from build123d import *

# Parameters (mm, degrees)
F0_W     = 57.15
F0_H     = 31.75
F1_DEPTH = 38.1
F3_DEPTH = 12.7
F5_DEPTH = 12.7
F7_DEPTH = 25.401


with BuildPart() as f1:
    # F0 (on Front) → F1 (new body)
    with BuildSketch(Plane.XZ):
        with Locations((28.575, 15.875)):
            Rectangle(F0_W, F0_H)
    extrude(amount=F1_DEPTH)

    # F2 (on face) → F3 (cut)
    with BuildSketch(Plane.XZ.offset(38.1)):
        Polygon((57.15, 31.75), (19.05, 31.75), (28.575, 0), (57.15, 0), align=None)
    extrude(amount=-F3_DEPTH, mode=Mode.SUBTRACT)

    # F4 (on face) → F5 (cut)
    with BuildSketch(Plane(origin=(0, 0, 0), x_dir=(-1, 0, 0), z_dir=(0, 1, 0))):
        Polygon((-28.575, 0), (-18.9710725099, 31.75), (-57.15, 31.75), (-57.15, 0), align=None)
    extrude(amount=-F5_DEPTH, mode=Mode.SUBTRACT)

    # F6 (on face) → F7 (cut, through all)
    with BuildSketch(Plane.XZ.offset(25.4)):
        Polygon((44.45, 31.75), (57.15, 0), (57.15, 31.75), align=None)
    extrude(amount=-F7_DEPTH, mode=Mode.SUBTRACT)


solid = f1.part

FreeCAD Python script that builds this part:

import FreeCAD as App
import Part
import Sketcher

V = App.Vector
Q = App.Units.Quantity


def add_polygon(sketch, points):
    """Adds a closed chain of lines whose ends are joined by coincident constraints."""
    first, n = sketch.GeometryCount, len(points)
    for a, b in zip(points, points[1:] + points[:1]):
        sketch.addGeometry(Part.LineSegment(App.Vector(*a, 0), App.Vector(*b, 0)), False)
    for i in range(n):
        sketch.addConstraint(Sketcher.Constraint("Coincident", first + i, 2, first + (i + 1) % n, 1))

doc = App.newDocument("Part")
params = doc.addObject("Spreadsheet::Sheet", "Params")
for row, (alias, value) in enumerate([
    ("sketch1_width", "2.25 in"),
    ("sketch1_height", "1.25 in"),
    ("pad1_length", "1.5 in"),
    ("sketch2_width", "1.5 in"),
    ("sketch2_height", "1.25 in"),
    ("sketch2_width2", "1.125 in"),
    ("pocket1_length", "0.5 in"),
    ("sketch3_height", "1.25 in"),
    ("sketch3_width", "1.125 in"),
    ("pocket2_length", "0.5 in"),
    ("sketch4_width", "0.5 in"),
    ("sketch4_height", "1.25 in"),
], start=1):
    params.set(f"A{row}", alias)
    params.set(f"B{row}", "=" + value)
    params.setAlias(f"B{row}", alias)

body = doc.addObject("PartDesign::Body", "Body")

sketch1 = doc.addObject("Sketcher::SketchObject", "Sketch")
body.addObject(sketch1)
sketch1.AttachmentSupport = (doc.XZ_Plane, [""])
sketch1.MapMode = "FlatFace"
add_polygon(sketch1, [(0, 32), (0, 0), (57, 0), (57, 32)])
sketch1.addConstraint([
    Sketcher.Constraint("Vertical", 0),
    Sketcher.Constraint("Horizontal", 1),
    Sketcher.Constraint("Vertical", 2),
    Sketcher.Constraint("Horizontal", 3),
    Sketcher.Constraint("Coincident", 0, 2, -1, 1),
    Sketcher.Constraint("DistanceX", 1, 1, 1, 2, Q("2.25 in")),
    Sketcher.Constraint("DistanceY", 0, 2, 0, 1, Q("1.25 in")),
])
sketch1.setExpression("Constraints[9]", "Params.sketch1_width")
sketch1.setExpression("Constraints[10]", "Params.sketch1_height")
pad1 = doc.addObject("PartDesign::Pad", "Pad")
body.addObject(pad1)
pad1.Profile = sketch1
pad1.setExpression("Length", "Params.pad1_length")

sketch2 = doc.addObject("Sketcher::SketchObject", "Sketch001")
body.addObject(sketch2)
sketch2.AttachmentSupport = (doc.XZ_Plane, [""])
sketch2.MapMode = "FlatFace"
sketch2.AttachmentOffset = App.Placement(V(0, 0, 1.5 * 25.4), App.Rotation())
add_polygon(sketch2, [(57, 32), (19, 32), (29, 0), (57, 0)])
sketch2.addConstraint([
    Sketcher.Constraint("Horizontal", 0),
    Sketcher.Constraint("Horizontal", 2),
    Sketcher.Constraint("Vertical", 3),
    Sketcher.Constraint("PointOnObject", 1, 2, -1),
    Sketcher.Constraint("DistanceX", 0, 2, 0, 1, Q("1.5 in")),
    Sketcher.Constraint("DistanceY", 3, 1, 3, 2, Q("1.25 in")),
    Sketcher.Constraint("DistanceX", 2, 1, 2, 2, Q("1.125 in")),
    Sketcher.Constraint("DistanceX", -1, 1, 0, 2, Q("0.75 in")),
])
sketch2.setExpression("Constraints[8]", "Params.sketch2_width")
sketch2.setExpression("Constraints[9]", "Params.sketch2_height")
sketch2.setExpression("Constraints[10]", "Params.sketch2_width2")
pocket1 = doc.addObject("PartDesign::Pocket", "Pocket")
body.addObject(pocket1)
pocket1.Profile = sketch2
pocket1.setExpression("Length", "Params.pocket1_length")

sketch3 = doc.addObject("Sketcher::SketchObject", "Sketch002")
body.addObject(sketch3)
sketch3.AttachmentSupport = (doc.XZ_Plane, [""])
sketch3.MapMode = "FlatFace"
add_polygon(sketch3, [(29, 0), (19, 32), (57, 32), (57, 0)])
sketch3.addConstraint([
    Sketcher.Constraint("Horizontal", 1),
    Sketcher.Constraint("Vertical", 2),
    Sketcher.Constraint("Horizontal", 3),
    Sketcher.Constraint("PointOnObject", 2, 2, -1),
    Sketcher.Constraint("DistanceY", 2, 2, 2, 1, Q("1.25 in")),
    Sketcher.Constraint("DistanceX", 3, 2, 3, 1, Q("1.125 in")),
    Sketcher.Constraint("DistanceX", -1, 1, 1, 2, Q("2.25 in")),
    Sketcher.Constraint("Distance", 0, Q("33.170739 mm")),
])
sketch3.setExpression("Constraints[8]", "Params.sketch3_height")
sketch3.setExpression("Constraints[9]", "Params.sketch3_width")
pocket2 = doc.addObject("PartDesign::Pocket", "Pocket001")
body.addObject(pocket2)
pocket2.Profile = sketch3
pocket2.setExpression("Length", "Params.pocket2_length")
pocket2.Reversed = True

sketch4 = doc.addObject("Sketcher::SketchObject", "Sketch003")
body.addObject(sketch4)
sketch4.AttachmentSupport = (doc.XZ_Plane, [""])
sketch4.MapMode = "FlatFace"
sketch4.AttachmentOffset = App.Placement(V(0, 0, 1 * 25.4), App.Rotation())
add_polygon(sketch4, [(44, 32), (57, 0), (57, 32)])
sketch4.addConstraint([
    Sketcher.Constraint("Vertical", 1),
    Sketcher.Constraint("Horizontal", 2),
    Sketcher.Constraint("PointOnObject", 0, 2, -1),
    Sketcher.Constraint("DistanceX", 2, 2, 2, 1, Q("0.5 in")),
    Sketcher.Constraint("DistanceY", 1, 1, 1, 2, Q("1.25 in")),
    Sketcher.Constraint("DistanceX", -1, 1, 0, 2, Q("2.25 in")),
])
sketch4.setExpression("Constraints[6]", "Params.sketch4_width")
sketch4.setExpression("Constraints[7]", "Params.sketch4_height")
pocket3 = doc.addObject("PartDesign::Pocket", "Pocket002")
body.addObject(pocket3)
pocket3.Profile = sketch4
pocket3.Type = "ThroughAll"

doc.recompute()
